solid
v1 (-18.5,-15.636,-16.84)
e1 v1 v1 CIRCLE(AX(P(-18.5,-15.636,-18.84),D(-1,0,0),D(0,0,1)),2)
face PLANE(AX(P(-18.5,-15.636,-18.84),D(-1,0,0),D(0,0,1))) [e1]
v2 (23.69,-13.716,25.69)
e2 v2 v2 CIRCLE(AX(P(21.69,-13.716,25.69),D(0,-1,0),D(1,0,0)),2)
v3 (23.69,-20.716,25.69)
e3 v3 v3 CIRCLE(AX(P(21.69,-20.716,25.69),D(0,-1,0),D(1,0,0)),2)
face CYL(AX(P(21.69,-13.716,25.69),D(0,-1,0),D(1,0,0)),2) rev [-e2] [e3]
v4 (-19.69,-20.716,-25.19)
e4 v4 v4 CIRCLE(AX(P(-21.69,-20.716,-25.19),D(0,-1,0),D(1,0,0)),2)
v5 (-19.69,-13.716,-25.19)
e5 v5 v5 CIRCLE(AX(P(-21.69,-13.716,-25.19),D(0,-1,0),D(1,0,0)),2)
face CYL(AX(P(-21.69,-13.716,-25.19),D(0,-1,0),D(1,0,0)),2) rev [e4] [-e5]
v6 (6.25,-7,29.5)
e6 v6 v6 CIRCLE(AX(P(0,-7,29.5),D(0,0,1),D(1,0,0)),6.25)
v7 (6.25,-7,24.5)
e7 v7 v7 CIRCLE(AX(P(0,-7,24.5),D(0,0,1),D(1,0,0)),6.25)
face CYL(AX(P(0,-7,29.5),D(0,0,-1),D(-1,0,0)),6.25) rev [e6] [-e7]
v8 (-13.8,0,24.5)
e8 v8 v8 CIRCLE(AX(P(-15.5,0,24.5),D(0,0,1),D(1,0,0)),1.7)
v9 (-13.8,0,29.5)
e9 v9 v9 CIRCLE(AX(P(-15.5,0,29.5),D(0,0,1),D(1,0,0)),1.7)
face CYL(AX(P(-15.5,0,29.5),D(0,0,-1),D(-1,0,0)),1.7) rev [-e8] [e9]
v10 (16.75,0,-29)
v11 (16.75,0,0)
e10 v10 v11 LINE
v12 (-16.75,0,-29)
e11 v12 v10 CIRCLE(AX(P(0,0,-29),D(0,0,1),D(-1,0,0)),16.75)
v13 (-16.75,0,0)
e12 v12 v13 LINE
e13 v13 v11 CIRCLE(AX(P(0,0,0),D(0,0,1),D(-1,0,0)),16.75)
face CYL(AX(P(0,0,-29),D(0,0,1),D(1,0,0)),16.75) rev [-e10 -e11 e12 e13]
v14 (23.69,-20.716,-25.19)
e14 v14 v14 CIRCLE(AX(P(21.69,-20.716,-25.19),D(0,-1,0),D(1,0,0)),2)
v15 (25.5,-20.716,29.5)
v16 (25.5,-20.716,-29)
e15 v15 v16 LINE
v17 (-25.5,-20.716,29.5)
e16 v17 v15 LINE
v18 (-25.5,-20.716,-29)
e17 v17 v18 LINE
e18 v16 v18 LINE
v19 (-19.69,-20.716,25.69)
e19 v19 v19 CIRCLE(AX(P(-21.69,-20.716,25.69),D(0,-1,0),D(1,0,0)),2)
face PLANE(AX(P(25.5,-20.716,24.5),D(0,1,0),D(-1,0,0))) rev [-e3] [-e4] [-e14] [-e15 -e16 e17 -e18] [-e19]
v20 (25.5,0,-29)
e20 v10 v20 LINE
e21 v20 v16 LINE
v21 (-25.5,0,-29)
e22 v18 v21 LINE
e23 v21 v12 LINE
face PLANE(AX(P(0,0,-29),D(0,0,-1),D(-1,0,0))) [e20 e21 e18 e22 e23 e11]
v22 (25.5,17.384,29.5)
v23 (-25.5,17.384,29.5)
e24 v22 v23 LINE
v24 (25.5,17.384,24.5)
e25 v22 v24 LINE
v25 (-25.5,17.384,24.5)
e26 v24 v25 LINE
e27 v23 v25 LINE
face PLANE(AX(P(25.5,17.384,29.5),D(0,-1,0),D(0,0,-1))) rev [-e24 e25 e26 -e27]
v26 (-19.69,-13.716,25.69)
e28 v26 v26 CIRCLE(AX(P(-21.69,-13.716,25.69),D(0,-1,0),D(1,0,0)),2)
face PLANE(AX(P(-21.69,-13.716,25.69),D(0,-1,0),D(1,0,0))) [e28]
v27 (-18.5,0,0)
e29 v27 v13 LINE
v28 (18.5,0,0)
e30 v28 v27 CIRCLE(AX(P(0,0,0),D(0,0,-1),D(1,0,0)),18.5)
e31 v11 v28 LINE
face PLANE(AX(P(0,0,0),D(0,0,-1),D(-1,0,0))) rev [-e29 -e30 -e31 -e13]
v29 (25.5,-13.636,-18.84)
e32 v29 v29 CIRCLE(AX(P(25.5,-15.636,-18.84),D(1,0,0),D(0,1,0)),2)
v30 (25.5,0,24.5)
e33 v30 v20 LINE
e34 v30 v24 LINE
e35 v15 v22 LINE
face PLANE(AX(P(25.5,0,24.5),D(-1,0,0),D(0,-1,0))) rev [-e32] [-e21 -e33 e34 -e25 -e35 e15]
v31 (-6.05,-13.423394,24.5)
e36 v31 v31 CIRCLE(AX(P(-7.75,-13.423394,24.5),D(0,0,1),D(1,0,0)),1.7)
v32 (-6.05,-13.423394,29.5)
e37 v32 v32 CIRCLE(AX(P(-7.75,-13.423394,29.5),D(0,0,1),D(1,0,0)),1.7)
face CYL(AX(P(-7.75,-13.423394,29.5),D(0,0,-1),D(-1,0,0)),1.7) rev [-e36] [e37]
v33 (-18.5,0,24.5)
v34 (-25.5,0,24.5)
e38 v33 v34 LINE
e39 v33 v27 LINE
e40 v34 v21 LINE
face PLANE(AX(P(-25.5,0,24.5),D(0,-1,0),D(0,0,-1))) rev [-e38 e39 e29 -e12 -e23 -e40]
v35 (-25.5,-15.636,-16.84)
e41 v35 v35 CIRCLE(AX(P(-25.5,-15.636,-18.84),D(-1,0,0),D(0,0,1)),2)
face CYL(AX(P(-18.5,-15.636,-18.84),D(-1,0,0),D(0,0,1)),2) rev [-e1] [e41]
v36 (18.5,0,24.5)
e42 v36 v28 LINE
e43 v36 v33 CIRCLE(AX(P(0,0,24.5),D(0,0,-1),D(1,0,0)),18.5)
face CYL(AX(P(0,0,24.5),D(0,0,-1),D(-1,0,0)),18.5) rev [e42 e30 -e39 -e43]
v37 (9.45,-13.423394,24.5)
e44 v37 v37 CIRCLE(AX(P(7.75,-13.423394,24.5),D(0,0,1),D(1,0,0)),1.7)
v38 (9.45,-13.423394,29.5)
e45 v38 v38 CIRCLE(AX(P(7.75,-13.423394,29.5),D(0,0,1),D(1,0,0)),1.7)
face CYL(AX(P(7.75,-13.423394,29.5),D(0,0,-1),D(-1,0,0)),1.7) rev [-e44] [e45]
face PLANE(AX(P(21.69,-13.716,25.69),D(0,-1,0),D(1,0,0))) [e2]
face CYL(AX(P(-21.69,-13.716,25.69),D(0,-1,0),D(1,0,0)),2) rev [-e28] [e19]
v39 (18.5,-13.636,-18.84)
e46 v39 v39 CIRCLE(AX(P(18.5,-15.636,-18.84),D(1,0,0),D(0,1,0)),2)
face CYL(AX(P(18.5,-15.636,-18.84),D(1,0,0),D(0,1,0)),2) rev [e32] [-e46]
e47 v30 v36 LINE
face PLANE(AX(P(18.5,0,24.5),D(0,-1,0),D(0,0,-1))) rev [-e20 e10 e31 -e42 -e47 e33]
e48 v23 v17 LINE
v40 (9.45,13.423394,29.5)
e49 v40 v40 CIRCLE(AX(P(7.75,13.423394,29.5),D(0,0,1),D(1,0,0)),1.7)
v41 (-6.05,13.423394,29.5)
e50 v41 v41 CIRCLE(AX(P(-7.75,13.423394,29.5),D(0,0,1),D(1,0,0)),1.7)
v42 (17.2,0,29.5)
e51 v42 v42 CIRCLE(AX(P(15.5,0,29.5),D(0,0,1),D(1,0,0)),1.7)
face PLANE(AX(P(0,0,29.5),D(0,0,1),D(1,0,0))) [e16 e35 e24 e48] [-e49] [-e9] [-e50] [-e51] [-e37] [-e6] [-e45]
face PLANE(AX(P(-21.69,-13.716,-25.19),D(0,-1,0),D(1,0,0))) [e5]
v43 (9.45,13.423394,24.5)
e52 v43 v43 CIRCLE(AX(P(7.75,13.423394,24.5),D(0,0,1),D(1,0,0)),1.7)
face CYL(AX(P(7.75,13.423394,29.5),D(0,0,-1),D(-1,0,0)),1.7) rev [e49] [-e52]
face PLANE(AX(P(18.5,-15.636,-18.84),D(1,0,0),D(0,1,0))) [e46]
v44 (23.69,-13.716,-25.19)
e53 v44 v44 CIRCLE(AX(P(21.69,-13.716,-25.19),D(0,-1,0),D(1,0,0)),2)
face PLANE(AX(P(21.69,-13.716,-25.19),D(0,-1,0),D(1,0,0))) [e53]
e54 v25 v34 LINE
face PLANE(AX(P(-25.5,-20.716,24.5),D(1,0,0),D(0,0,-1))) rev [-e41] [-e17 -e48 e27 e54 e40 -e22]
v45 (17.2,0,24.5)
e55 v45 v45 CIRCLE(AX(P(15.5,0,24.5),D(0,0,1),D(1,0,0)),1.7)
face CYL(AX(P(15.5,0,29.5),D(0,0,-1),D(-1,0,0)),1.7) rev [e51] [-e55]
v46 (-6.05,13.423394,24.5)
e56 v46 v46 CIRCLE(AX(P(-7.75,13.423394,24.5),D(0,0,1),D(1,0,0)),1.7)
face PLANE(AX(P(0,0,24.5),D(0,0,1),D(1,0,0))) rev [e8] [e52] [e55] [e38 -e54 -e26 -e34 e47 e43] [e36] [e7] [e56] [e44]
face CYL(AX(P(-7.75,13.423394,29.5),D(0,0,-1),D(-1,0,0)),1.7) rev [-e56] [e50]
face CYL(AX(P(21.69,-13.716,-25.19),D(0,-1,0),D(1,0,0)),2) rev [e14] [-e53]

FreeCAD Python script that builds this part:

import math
import FreeCAD as App
import Part
import Sketcher

V = App.Vector
Q = App.Units.Quantity

doc = App.newDocument("Part")
body = doc.addObject("PartDesign::Body", "Body")

# Sketch on XY plane
sketch1 = body.newObject("Sketcher::SketchObject", "Sketch")
sketch1.AttachmentSupport = (doc.getObject("XY_Plane"), [""])
sketch1.MapMode = "FlatFace"
sketch1.addGeometry([
    Part.LineSegment(V(25.5, 0, 0), V(18.5, 0, 0)),  # 0
    Part.ArcOfCircle(Part.Circle(V(0, 0, 0), V(0, 0, 1), 18.5), math.radians(180), math.radians(360)),  # 1
    Part.LineSegment(V(-18.5, 0, 0), V(-25.5, 0, 0)),  # 2
    Part.LineSegment(V(-25.5, 0, 0), V(-25.5, -20.716, 0)),  # 3
    Part.LineSegment(V(-25.5, -20.716, 0), V(25.5, -20.716, 0)),  # 4
    Part.LineSegment(V(25.5, -20.716, 0), V(25.5, 0, 0)),  # 5
], False)
sketch1.addConstraint([
    Sketcher.Constraint("Coincident", 0, 2, 1, 2),
    Sketcher.Constraint("Coincident", 1, 1, 2, 1),
    Sketcher.Constraint("Coincident", 2, 2, 3, 1),
    Sketcher.Constraint("Coincident", 3, 2, 4, 1),
    Sketcher.Constraint("Coincident", 4, 2, 5, 1),
    Sketcher.Constraint("Coincident", 5, 2, 0, 1),
    Sketcher.Constraint("Horizontal", 0),
    Sketcher.Constraint("Horizontal", 2),
    Sketcher.Constraint("Vertical", 3),
    Sketcher.Constraint("Horizontal", 4),
    Sketcher.Constraint("Vertical", 5),
    Sketcher.Constraint("Coincident", 1, 3, -1, 1),
    Sketcher.Constraint("Symmetric", 2, 2, 5, 2, -1, 1),
    Sketcher.Constraint("PointOnObject", 0, 2, -1),
    Sketcher.Constraint("Radius", 1, Q("18.5 mm")),
    Sketcher.Constraint("DistanceX", 0, 2, 0, 1, Q("7 mm")),
    Sketcher.Constraint("DistanceY", 3, 2, 3, 1, Q("20.716 mm")),
])
pad1 = body.newObject("PartDesign::Pad", "Pad")
pad1.Profile = sketch1
pad1.Length = 24.5

# Sketch on XY plane
sketch2 = body.newObject("Sketcher::SketchObject", "Sketch001")
sketch2.AttachmentSupport = (doc.getObject("XY_Plane"), [""])
sketch2.MapMode = "FlatFace"
sketch2.AttachmentOffset = App.Placement(V(0, 0, 24.5), App.Rotation())
sketch2.addGeometry([
    Part.LineSegment(V(-25.5, 17.384, 0), V(-25.5, -20.716, 0)),  # 0
    Part.LineSegment(V(-25.5, -20.716, 0), V(25.5, -20.716, 0)),  # 1
    Part.LineSegment(V(25.5, -20.716, 0), V(25.5, 17.384, 0)),  # 2
    Part.LineSegment(V(25.5, 17.384, 0), V(-25.5, 17.384, 0)),  # 3
    Part.Circle(V(-7.75, -13.423394, 0), V(0, 0, 1), 1.7),  # 4
    Part.Circle(V(7.75, -13.423394, 0), V(0, 0, 1), 1.7),  # 5
    Part.Circle(V(0, -7, 0), V(0, 0, 1), 6.25),  # 6
    Part.Circle(V(-15.5, 0, 0), V(0, 0, 1), 1.7),  # 7
    Part.Circle(V(-7.75, 13.423394, 0), V(0, 0, 1), 1.7),  # 8
    Part.Circle(V(15.5, 0, 0), V(0, 0, 1), 1.7),  # 9
    Part.Circle(V(7.75, 13.423394, 0), V(0, 0, 1), 1.7),  # 10
], False)
sketch2.addConstraint([
    Sketcher.Constraint("Coincident", 0, 2, 1, 1),
    Sketcher.Constraint("Coincident", 1, 2, 2, 1),
    Sketcher.Constraint("Coincident", 2, 2, 3, 1),
    Sketcher.Constraint("Coincident", 3, 2, 0, 1),
    Sketcher.Constraint("Vertical", 0),
    Sketcher.Constraint("Horizontal", 1),
    Sketcher.Constraint("Vertical", 2),
    Sketcher.Constraint("Horizontal", 3),
    Sketcher.Constraint("Equal", 4, 5),
    Sketcher.Constraint("Equal", 5, 7),
    Sketcher.Constraint("Equal", 7, 8),
    Sketcher.Constraint("Equal", 8, 9),
    Sketcher.Constraint("Equal", 9, 10),
    Sketcher.Constraint("Symmetric", 5, 3, 8, 3, -1, 1),
    Sketcher.Constraint("Symmetric", 7, 3, 9, 3, -1, 1),
    Sketcher.Constraint("Symmetric", 4, 3, 10, 3, -1, 1),
    Sketcher.Constraint("Symmetric", 4, 3, 5, 3, -2),
    Sketcher.Constraint("PointOnObject", 6, 3, -2),
    Sketcher.Constraint("PointOnObject", 7, 3, -1),
    Sketcher.Constraint("Diameter", 4, Q("3.4 mm")),
    Sketcher.Constraint("Diameter", 6, Q("12.5 mm")),
    Sketcher.Constraint("DistanceX", 1, 1, 1, 2, Q("51 mm")),
    Sketcher.Constraint("DistanceY", 0, 2, 0, 1, Q("38.1 mm")),
    Sketcher.Constraint("DistanceY", 6, 3, -1, 1, Q("7 mm")),
    Sketcher.Constraint("DistanceX", 7, 3, 9, 3, Q("31 mm")),
    Sketcher.Constraint("DistanceX", 0, 2, 7, 3, Q("10 mm")),
    Sketcher.Constraint("DistanceX", 4, 3, 5, 3, Q("15.5 mm")),
    Sketcher.Constraint("DistanceY", 0, 2, -1, 1, Q("20.716 mm")),
    Sketcher.Constraint("DistanceY", 4, 3, -1, 1, Q("13.423394 mm")),
])
pad2 = body.newObject("PartDesign::Pad", "Pad001")
pad2.Profile = sketch2
pad2.Length = 5

# Sketch on XY plane
sketch3 = body.newObject("Sketcher::SketchObject", "Sketch002")
sketch3.AttachmentSupport = (doc.getObject("XY_Plane"), [""])
sketch3.MapMode = "FlatFace"
sketch3.addGeometry([
    Part.LineSegment(V(-25.5, 0, 0), V(-16.75, 0, 0)),  # 0
    Part.ArcOfCircle(Part.Circle(V(0, 0, 0), V(0, 0, 1), 16.75), math.radians(180), math.radians(360)),  # 1
    Part.LineSegment(V(16.75, 0, 0), V(25.5, 0, 0)),  # 2
    Part.LineSegment(V(25.5, 0, 0), V(25.5, -20.716, 0)),  # 3
    Part.LineSegment(V(25.5, -20.716, 0), V(-25.5, -20.716, 0)),  # 4
    Part.LineSegment(V(-25.5, -20.716, 0), V(-25.5, 0, 0)),  # 5
], False)
sketch3.addConstraint([
    Sketcher.Constraint("Coincident", 0, 2, 1, 1),
    Sketcher.Constraint("Coincident", 1, 2, 2, 1),
    Sketcher.Constraint("Coincident", 2, 2, 3, 1),
    Sketcher.Constraint("Coincident", 3, 2, 4, 1),
    Sketcher.Constraint("Coincident", 4, 2, 5, 1),
    Sketcher.Constraint("Coincident", 5, 2, 0, 1),
    Sketcher.Constraint("Horizontal", 0),
    Sketcher.Constraint("Horizontal", 2),
    Sketcher.Constraint("Vertical", 3),
    Sketcher.Constraint("Horizontal", 4),
    Sketcher.Constraint("Vertical", 5),
    Sketcher.Constraint("Coincident", 1, 3, -1, 1),
    Sketcher.Constraint("Symmetric", 2, 2, 5, 2, -1, 1),
    Sketcher.Constraint("PointOnObject", 0, 2, -1),
    Sketcher.Constraint("DistanceX", 4, 2, 4, 1, Q("51 mm")),
    Sketcher.Constraint("Radius", 1, Q("16.75 mm")),
    Sketcher.Constraint("DistanceY", 3, 2, 3, 1, Q("20.716 mm")),
])
pad3 = body.newObject("PartDesign::Pad", "Pad002")
pad3.Profile = sketch3
pad3.Length = 29
pad3.Reversed = True

# Sketch on XZ plane
sketch4 = body.newObject("Sketcher::SketchObject", "Sketch003")
sketch4.AttachmentSupport = (doc.getObject("XZ_Plane"), [""])
sketch4.MapMode = "FlatFace"
sketch4.AttachmentOffset = App.Placement(V(0, 0, 20.716), App.Rotation())
sketch4.addGeometry([
    Part.Circle(V(-21.69, 25.69, 0), V(0, 0, 1), 2),
    Part.Circle(V(21.69, 25.69, 0), V(0, 0, 1), 2),
    Part.Circle(V(-21.69, -25.19, 0), V(0, 0, 1), 2),
    Part.Circle(V(21.69, -25.19, 0), V(0, 0, 1), 2),
], False)
sketch4.addConstraint([
    Sketcher.Constraint("Equal", 0, 1),
    Sketcher.Constraint("Equal", 1, 2),
    Sketcher.Constraint("Equal", 2, 3),
    Sketcher.Constraint("Symmetric", 0, 3, 1, 3, -2),
    Sketcher.Constraint("Symmetric", 2, 3, 3, 3, -2),
    Sketcher.Constraint("Vertical", 0, 3, 2, 3),
    Sketcher.Constraint("Diameter", 0, Q("4 mm")),
    Sketcher.Constraint("DistanceX", 0, 3, -1, 1, Q("21.69 mm")),
    Sketcher.Constraint("DistanceY", -1, 1, 0, 3, Q("25.69 mm")),
    Sketcher.Constraint("DistanceY", 2, 3, -1, 1, Q("25.19 mm")),
])
pocket1 = body.newObject("PartDesign::Pocket", "Pocket")
pocket1.Profile = sketch4
pocket1.Length = 7

# Sketch on YZ plane
sketch5 = body.newObject("Sketcher::SketchObject", "Sketch004")
sketch5.AttachmentSupport = (doc.getObject("YZ_Plane"), [""])
sketch5.MapMode = "FlatFace"
sketch5.AttachmentOffset = App.Placement(V(0, 0, -25.5), App.Rotation())
sketch5.addGeometry(Part.Circle(V(-15.636, -18.84, 0), V(0, 0, 1), 2), False)
sketch5.addConstraint([
    Sketcher.Constraint("Diameter", 0, Q("4 mm")),
    Sketcher.Constraint("DistanceY", 0, 3, -1, 1, Q("18.84 mm")),
    Sketcher.Constraint("DistanceX", 0, 3, -1, 1, Q("15.636 mm")),
])
pocket2 = body.newObject("PartDesign::Pocket", "Pocket001")
pocket2.Profile = sketch5
pocket2.Length = 7
pocket2.Reversed = True

# Sketch on YZ plane
sketch6 = body.newObject("Sketcher::SketchObject", "Sketch005")
sketch6.AttachmentSupport = (doc.getObject("YZ_Plane"), [""])
sketch6.MapMode = "FlatFace"
sketch6.AttachmentOffset = App.Placement(V(0, 0, 18.5), App.Rotation())
sketch6.addGeometry(Part.Circle(V(-15.636, -18.84, 0), V(0, 0, 1), 2), False)
sketch6.addConstraint([
    Sketcher.Constraint("Diameter", 0, Q("4 mm")),
    Sketcher.Constraint("DistanceY", 0, 3, -1, 1, Q("18.84 mm")),
    Sketcher.Constraint("DistanceX", 0, 3, -1, 1, Q("15.636 mm")),
])
pocket3 = body.newObject("PartDesign::Pocket", "Pocket002")
pocket3.Profile = sketch6
pocket3.Length = 7
pocket3.Reversed = True

doc.recompute()
